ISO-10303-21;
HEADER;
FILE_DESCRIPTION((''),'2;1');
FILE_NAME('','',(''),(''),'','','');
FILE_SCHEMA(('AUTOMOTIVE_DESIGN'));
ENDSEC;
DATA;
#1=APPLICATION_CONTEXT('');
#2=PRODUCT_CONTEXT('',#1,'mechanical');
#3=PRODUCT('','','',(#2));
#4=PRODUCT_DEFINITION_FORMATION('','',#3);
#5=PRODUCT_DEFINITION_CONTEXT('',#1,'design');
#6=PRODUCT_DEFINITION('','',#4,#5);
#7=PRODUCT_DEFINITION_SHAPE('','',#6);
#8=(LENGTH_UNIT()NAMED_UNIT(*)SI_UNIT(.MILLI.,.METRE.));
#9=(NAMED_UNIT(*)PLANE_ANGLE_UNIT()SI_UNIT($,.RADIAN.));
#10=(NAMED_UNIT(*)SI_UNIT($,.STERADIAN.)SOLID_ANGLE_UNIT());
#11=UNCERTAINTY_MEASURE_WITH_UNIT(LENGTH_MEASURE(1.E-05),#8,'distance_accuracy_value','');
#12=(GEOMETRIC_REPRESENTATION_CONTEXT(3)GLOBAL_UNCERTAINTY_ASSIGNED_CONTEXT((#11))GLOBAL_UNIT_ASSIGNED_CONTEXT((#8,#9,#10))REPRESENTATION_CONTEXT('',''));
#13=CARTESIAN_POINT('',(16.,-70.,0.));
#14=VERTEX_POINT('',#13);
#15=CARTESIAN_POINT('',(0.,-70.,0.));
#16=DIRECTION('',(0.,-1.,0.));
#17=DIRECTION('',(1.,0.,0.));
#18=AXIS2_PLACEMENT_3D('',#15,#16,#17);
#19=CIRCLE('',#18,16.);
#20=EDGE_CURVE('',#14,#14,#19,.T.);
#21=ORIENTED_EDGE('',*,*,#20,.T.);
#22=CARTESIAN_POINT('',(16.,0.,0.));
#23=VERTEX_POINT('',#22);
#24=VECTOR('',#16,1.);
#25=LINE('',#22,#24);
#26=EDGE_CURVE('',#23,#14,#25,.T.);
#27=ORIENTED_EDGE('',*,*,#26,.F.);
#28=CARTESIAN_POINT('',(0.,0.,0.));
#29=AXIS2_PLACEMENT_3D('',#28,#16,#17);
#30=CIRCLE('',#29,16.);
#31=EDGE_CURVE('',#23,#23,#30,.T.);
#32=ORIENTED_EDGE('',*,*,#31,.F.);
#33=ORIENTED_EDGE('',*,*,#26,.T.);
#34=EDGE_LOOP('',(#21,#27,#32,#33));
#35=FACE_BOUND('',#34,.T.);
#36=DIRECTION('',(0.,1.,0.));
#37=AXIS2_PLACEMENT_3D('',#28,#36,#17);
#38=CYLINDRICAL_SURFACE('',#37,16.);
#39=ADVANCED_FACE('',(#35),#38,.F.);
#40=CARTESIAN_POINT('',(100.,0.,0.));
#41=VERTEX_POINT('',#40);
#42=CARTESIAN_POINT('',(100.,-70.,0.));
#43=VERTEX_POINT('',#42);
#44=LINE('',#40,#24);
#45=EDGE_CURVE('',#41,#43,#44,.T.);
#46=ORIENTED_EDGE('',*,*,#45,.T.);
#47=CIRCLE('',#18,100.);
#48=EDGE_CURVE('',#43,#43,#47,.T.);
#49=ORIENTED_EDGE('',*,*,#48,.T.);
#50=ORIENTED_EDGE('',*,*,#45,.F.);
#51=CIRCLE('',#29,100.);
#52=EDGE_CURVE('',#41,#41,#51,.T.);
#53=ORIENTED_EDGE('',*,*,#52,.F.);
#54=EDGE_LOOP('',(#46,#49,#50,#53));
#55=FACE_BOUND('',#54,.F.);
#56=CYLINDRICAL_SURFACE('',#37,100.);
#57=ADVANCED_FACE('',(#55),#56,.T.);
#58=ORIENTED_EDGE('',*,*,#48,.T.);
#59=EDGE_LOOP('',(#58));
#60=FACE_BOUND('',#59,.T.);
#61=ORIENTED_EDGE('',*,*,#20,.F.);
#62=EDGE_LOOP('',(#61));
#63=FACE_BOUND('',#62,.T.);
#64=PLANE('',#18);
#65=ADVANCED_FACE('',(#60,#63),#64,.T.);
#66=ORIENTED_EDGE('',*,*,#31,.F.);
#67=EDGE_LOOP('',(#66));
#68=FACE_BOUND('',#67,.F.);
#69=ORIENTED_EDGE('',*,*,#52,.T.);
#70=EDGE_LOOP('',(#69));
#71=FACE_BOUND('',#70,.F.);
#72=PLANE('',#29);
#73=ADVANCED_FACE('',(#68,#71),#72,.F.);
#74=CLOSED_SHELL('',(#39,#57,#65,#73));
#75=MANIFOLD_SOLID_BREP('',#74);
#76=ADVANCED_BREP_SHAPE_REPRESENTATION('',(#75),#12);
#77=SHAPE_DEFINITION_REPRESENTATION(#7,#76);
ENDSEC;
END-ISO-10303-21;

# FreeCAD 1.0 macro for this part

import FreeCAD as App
import Part
import Sketcher
Q = App.Units.Quantity

doc = App.newDocument("Part")
body = doc.addObject("PartDesign::Body", "Body")

sketch1 = body.newObject("Sketcher::SketchObject", "Sketch")
sketch1.AttachmentSupport = (doc.getObject("XZ_Plane"), [""])
sketch1.MapMode = "FlatFace"
sketch1.addGeometry([
    Part.Circle(App.Vector(0, 0, 0), App.Vector(0, 0, 1), 100),
    Part.Circle(App.Vector(0, 0, 0), App.Vector(0, 0, 1), 16),
], False)
sketch1.addConstraint([
    Sketcher.Constraint("Coincident", 0, 3, -1, 1),
    Sketcher.Constraint("Coincident", 1, 3, -1, 1),
    Sketcher.Constraint("Diameter", 0, Q("200 mm")),
    Sketcher.Constraint("Diameter", 1, Q("32 mm")),
])
pad1 = body.newObject("PartDesign::Pad", "Pad")
pad1.Profile = sketch1
pad1.Length = 70

doc.recompute()
